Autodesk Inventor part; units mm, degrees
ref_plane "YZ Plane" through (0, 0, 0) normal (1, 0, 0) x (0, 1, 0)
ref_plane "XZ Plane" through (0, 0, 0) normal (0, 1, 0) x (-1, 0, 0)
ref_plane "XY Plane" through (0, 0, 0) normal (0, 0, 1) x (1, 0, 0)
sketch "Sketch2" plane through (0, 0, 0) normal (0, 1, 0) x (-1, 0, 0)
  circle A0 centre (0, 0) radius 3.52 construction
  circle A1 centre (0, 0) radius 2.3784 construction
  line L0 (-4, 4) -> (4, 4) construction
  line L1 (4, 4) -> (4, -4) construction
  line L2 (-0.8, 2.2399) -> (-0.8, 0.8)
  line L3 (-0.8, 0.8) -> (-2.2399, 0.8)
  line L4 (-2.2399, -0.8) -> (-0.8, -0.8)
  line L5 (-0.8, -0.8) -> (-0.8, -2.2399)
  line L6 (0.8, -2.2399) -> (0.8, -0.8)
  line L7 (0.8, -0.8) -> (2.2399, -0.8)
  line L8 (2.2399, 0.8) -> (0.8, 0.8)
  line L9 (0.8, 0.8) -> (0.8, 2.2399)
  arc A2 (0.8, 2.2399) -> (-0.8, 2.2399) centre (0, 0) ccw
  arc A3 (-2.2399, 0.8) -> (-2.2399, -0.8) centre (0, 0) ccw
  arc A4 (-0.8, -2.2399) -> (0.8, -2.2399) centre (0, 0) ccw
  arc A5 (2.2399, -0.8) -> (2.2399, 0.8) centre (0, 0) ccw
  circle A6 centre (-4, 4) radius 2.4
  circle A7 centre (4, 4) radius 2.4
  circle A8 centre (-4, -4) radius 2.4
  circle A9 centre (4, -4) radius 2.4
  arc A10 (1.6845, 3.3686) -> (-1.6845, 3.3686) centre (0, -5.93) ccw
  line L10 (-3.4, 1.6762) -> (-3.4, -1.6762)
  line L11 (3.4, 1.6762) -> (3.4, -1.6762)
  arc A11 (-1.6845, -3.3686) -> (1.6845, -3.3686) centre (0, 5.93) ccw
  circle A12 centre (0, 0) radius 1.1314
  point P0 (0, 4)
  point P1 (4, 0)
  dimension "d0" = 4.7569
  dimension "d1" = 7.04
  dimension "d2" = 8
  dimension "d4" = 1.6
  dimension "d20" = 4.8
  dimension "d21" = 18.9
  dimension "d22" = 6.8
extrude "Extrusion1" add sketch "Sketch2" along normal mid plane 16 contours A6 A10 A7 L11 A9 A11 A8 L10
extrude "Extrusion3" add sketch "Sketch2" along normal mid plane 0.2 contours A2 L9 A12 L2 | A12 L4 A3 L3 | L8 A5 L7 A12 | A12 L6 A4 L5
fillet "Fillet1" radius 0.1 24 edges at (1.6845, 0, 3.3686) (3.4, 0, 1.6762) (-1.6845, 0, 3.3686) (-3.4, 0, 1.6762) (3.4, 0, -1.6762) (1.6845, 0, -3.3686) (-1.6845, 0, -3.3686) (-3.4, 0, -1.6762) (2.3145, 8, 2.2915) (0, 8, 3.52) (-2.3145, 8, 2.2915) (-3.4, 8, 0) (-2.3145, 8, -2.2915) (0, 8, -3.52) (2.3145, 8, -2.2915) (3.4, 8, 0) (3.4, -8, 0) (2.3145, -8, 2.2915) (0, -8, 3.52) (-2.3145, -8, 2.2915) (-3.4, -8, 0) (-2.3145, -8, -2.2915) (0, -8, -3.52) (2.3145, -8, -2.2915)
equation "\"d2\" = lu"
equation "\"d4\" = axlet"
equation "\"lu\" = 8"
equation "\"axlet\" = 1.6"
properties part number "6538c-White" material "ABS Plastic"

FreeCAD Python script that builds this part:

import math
import FreeCAD as App
import Part
import Sketcher


def edges_at(feature, points):
    """Names of the edges that pass closest to the given points."""
    edges = feature.Shape.Edges
    near = lambda p: min(range(len(edges)), key=lambda i: edges[i].distToShape(Part.Vertex(*p))[0])
    return sorted({f"Edge{near(p) + 1}" for p in points})

doc = App.newDocument("Part")
body = doc.addObject("PartDesign::Body", "Body")

sketch1 = body.newObject("Sketcher::SketchObject", "Sketch")
sketch1.AttachmentSupport = (doc.getObject("XZ_Plane"), [""])
sketch1.MapMode = "FlatFace"
sketch1.addGeometry([
    Part.ArcOfCircle(Part.Circle(App.Vector(4, 4, 0), App.Vector(0, 0, 1), 2.4), math.radians(-164.747184), math.radians(-104.477453)),
    Part.LineSegment(App.Vector(3.4, 1.6762, 0), App.Vector(3.4, -1.6762, 0)),
    Part.ArcOfCircle(Part.Circle(App.Vector(4, -4, 0), App.Vector(0, 0, 1), 2.4), math.radians(104.477453), math.radians(164.747184)),
    Part.ArcOfCircle(Part.Circle(App.Vector(0, 5.93, 0), App.Vector(0, 0, 1), 9.449947), math.radians(-100.268133), math.radians(-79.731867)),
    Part.ArcOfCircle(Part.Circle(App.Vector(-4, -4, 0), App.Vector(0, 0, 1), 2.4), math.radians(15.252816), math.radians(75.522547)),
    Part.LineSegment(App.Vector(-3.4, -1.6762, 0), App.Vector(-3.4, 1.6762, 0)),
    Part.ArcOfCircle(Part.Circle(App.Vector(-4, 4, 0), App.Vector(0, 0, 1), 2.4), math.radians(-75.522547), math.radians(-15.252816)),
    Part.ArcOfCircle(Part.Circle(App.Vector(0, -5.93, 0), App.Vector(0, 0, 1), 9.449947), math.radians(79.731867), math.radians(100.268133)),
    Part.LineSegment(App.Vector(0.8, 0.8, 0), App.Vector(0.8, 2.2399, 0)),
    Part.ArcOfCircle(Part.Circle(App.Vector(0, 0, 0), App.Vector(0, 0, 1), 2.378477), math.radians(70.345366), math.radians(109.654634)),
    Part.LineSegment(App.Vector(-0.8, 2.2399, 0), App.Vector(-0.8, 0.8, 0)),
    Part.LineSegment(App.Vector(-0.8, 0.8, 0), App.Vector(-2.2399, 0.8, 0)),
    Part.ArcOfCircle(Part.Circle(App.Vector(0, 0, 0), App.Vector(0, 0, 1), 2.378477), math.radians(160.345366), math.radians(199.654634)),
    Part.LineSegment(App.Vector(-2.2399, -0.8, 0), App.Vector(-0.8, -0.8, 0)),
    Part.LineSegment(App.Vector(-0.8, -0.8, 0), App.Vector(-0.8, -2.2399, 0)),
    Part.ArcOfCircle(Part.Circle(App.Vector(0, 0, 0), App.Vector(0, 0, 1), 2.378477), math.radians(-109.654634), math.radians(-70.345366)),
    Part.LineSegment(App.Vector(0.8, -2.2399, 0), App.Vector(0.8, -0.8, 0)),
    Part.LineSegment(App.Vector(0.8, -0.8, 0), App.Vector(2.2399, -0.8, 0)),
    Part.ArcOfCircle(Part.Circle(App.Vector(0, 0, 0), App.Vector(0, 0, 1), 2.378477), math.radians(-19.654634), math.radians(19.654634)),
    Part.LineSegment(App.Vector(2.2399, 0.8, 0), App.Vector(0.8, 0.8, 0)),
], False)
sketch1.addConstraint([
    Sketcher.Constraint("Coincident", 0, 2, 1, 1),
    Sketcher.Constraint("Coincident", 1, 2, 2, 1),
    Sketcher.Constraint("Coincident", 2, 2, 3, 2),
    Sketcher.Constraint("Coincident", 3, 1, 4, 1),
    Sketcher.Constraint("Coincident", 4, 2, 5, 1),
    Sketcher.Constraint("Coincident", 5, 2, 6, 1),
    Sketcher.Constraint("Coincident", 6, 2, 7, 2),
    Sketcher.Constraint("Coincident", 7, 1, 0, 1),
    Sketcher.Constraint("Coincident", 8, 2, 9, 1),
    Sketcher.Constraint("Coincident", 9, 2, 10, 1),
    Sketcher.Constraint("Coincident", 10, 2, 11, 1),
    Sketcher.Constraint("Coincident", 11, 2, 12, 1),
    Sketcher.Constraint("Coincident", 12, 2, 13, 1),
    Sketcher.Constraint("Coincident", 13, 2, 14, 1),
    Sketcher.Constraint("Coincident", 14, 2, 15, 1),
    Sketcher.Constraint("Coincident", 15, 2, 16, 1),
    Sketcher.Constraint("Coincident", 16, 2, 17, 1),
    Sketcher.Constraint("Coincident", 17, 2, 18, 1),
    Sketcher.Constraint("Coincident", 18, 2, 19, 1),
    Sketcher.Constraint("Coincident", 19, 2, 8, 1),
    Sketcher.Constraint("Vertical", 1),
    Sketcher.Constraint("Vertical", 5),
    Sketcher.Constraint("Vertical", 8),
    Sketcher.Constraint("Vertical", 10),
    Sketcher.Constraint("Horizontal", 11),
    Sketcher.Constraint("Horizontal", 13),
    Sketcher.Constraint("Vertical", 14),
    Sketcher.Constraint("Vertical", 16),
    Sketcher.Constraint("Horizontal", 17),
    Sketcher.Constraint("Horizontal", 19),
    Sketcher.Constraint("Coincident", 9, 3, -1, 1),
    Sketcher.Constraint("Coincident", 12, 3, -1, 1),
    Sketcher.Constraint("Coincident", 15, 3, -1, 1),
    Sketcher.Constraint("Coincident", 18, 3, -1, 1),
    Sketcher.Constraint("Equal", 0, 2),
    Sketcher.Constraint("Equal", 2, 4),
    Sketcher.Constraint("Equal", 4, 6),
    Sketcher.Constraint("Equal", 3, 7),
    Sketcher.Constraint("Equal", 9, 12),
    Sketcher.Constraint("Equal", 12, 15),
    Sketcher.Constraint("Equal", 15, 18),
    Sketcher.Constraint("Symmetric", 0, 3, 4, 3, -1, 1),
    Sketcher.Constraint("Symmetric", 2, 3, 6, 3, -1, 1),
    Sketcher.Constraint("Symmetric", 3, 3, 7, 3, -1, 1),
    Sketcher.Constraint("Symmetric", 10, 2, 16, 2, -1, 1),
    Sketcher.Constraint("Symmetric", 13, 2, 19, 2, -1, 1),
    Sketcher.Constraint("Symmetric", 2, 3, 4, 3, -2),
    Sketcher.Constraint("Symmetric", 13, 2, 16, 2, -2),
    Sketcher.Constraint("PointOnObject", 3, 3, -2),
    Sketcher.Constraint("Horizontal", 1, 2, 4, 2),
    Sketcher.Constraint("Equal", 19, 8),
    Sketcher.Constraint("Radius", 0, 2.4),
    Sketcher.Constraint("Radius", 3, 9.45),
    Sketcher.Constraint("DistanceY", 2, 3, 0, 3, 8.0),
    Sketcher.Constraint("DistanceX", 4, 3, 2, 3, 8.0),
    Sketcher.Constraint("Radius", 9, 2.3785),
    Sketcher.Constraint("DistanceX", 9, 2, 8, 2, 1.6),
    Sketcher.Constraint("DistanceX", -1, 1, 0, 2, 3.4),
    Sketcher.Constraint("DistanceY", -1, 1, 3, 3, 5.93),
])
pad1 = body.newObject("PartDesign::Pad", "Pad")
pad1.Profile = sketch1
pad1.Length = 16
pad1.Midplane = True

sketch2 = body.newObject("Sketcher::SketchObject", "Sketch001")
sketch2.AttachmentSupport = (doc.getObject("XZ_Plane"), [""])
sketch2.MapMode = "FlatFace"
sketch2.addGeometry([
    Part.ArcOfCircle(Part.Circle(App.Vector(0, 0, 0), App.Vector(0, 0, 1), 2.378477), math.radians(70.345366), math.radians(109.654634)),
    Part.LineSegment(App.Vector(0.8, 2.2399, 0), App.Vector(0.8, 0.8, 0)),
    Part.ArcOfCircle(Part.Circle(App.Vector(0, 0, 0), App.Vector(0, 0, 1), 1.1314), math.radians(45), math.radians(135)),
    Part.LineSegment(App.Vector(-0.8, 0.8, 0), App.Vector(-0.8, 2.2399, 0)),
    Part.ArcOfCircle(Part.Circle(App.Vector(0, 0, 0), App.Vector(0, 0, 1), 1.1314), math.radians(-45), math.radians(45)),
    Part.LineSegment(App.Vector(0.8, 0.8, 0), App.Vector(2.2399, 0.8, 0)),
    Part.ArcOfCircle(Part.Circle(App.Vector(0, 0, 0), App.Vector(0, 0, 1), 2.378477), math.radians(-19.654634), math.radians(19.654634)),
    Part.LineSegment(App.Vector(2.2399, -0.8, 0), App.Vector(0.8, -0.8, 0)),
    Part.LineSegment(App.Vector(-2.2399, 0.8, 0), App.Vector(-0.8, 0.8, 0)),
    Part.ArcOfCircle(Part.Circle(App.Vector(0, 0, 0), App.Vector(0, 0, 1), 1.1314), math.radians(135), math.radians(225)),
    Part.LineSegment(App.Vector(-0.8, -0.8, 0), App.Vector(-2.2399, -0.8, 0)),
    Part.ArcOfCircle(Part.Circle(App.Vector(0, 0, 0), App.Vector(0, 0, 1), 2.378477), math.radians(160.345366), math.radians(199.654634)),
    Part.ArcOfCircle(Part.Circle(App.Vector(0, 0, 0), App.Vector(0, 0, 1), 1.1314), math.radians(-135), math.radians(-45)),
    Part.LineSegment(App.Vector(0.8, -0.8, 0), App.Vector(0.8, -2.2399, 0)),
    Part.ArcOfCircle(Part.Circle(App.Vector(0, 0, 0), App.Vector(0, 0, 1), 2.378477), math.radians(-109.654634), math.radians(-70.345366)),
    Part.LineSegment(App.Vector(-0.8, -2.2399, 0), App.Vector(-0.8, -0.8, 0)),
], False)
sketch2.addConstraint([
    Sketcher.Constraint("Coincident", 0, 1, 1, 1),
    Sketcher.Constraint("Coincident", 1, 2, 2, 1),
    Sketcher.Constraint("Coincident", 2, 2, 3, 1),
    Sketcher.Constraint("Coincident", 3, 2, 0, 2),
    Sketcher.Constraint("Coincident", 4, 2, 5, 1),
    Sketcher.Constraint("Coincident", 5, 2, 6, 2),
    Sketcher.Constraint("Coincident", 6, 1, 7, 1),
    Sketcher.Constraint("Coincident", 7, 2, 4, 1),
    Sketcher.Constraint("Coincident", 8, 2, 9, 1),
    Sketcher.Constraint("Coincident", 9, 2, 10, 1),
    Sketcher.Constraint("Coincident", 10, 2, 11, 2),
    Sketcher.Constraint("Coincident", 11, 1, 8, 1),
    Sketcher.Constraint("Coincident", 12, 2, 13, 1),
    Sketcher.Constraint("Coincident", 13, 2, 14, 2),
    Sketcher.Constraint("Coincident", 14, 1, 15, 1),
    Sketcher.Constraint("Coincident", 15, 2, 12, 1),
    Sketcher.Constraint("Vertical", 1),
    Sketcher.Constraint("Vertical", 3),
    Sketcher.Constraint("Horizontal", 5),
    Sketcher.Constraint("Horizontal", 7),
    Sketcher.Constraint("Horizontal", 8),
    Sketcher.Constraint("Horizontal", 10),
    Sketcher.Constraint("Vertical", 13),
    Sketcher.Constraint("Vertical", 15),
    Sketcher.Constraint("Coincident", 0, 3, -1, 1),
    Sketcher.Constraint("Coincident", 2, 3, -1, 1),
    Sketcher.Constraint("Coincident", 4, 3, -1, 1),
    Sketcher.Constraint("Coincident", 6, 3, -1, 1),
    Sketcher.Constraint("Coincident", 9, 3, -1, 1),
    Sketcher.Constraint("Coincident", 11, 3, -1, 1),
    Sketcher.Constraint("Coincident", 12, 3, -1, 1),
    Sketcher.Constraint("Coincident", 14, 3, -1, 1),
    Sketcher.Constraint("Coincident", 4, 2, 1, 2),
    Sketcher.Constraint("Coincident", 8, 2, 2, 2),
    Sketcher.Constraint("Coincident", 12, 2, 7, 2),
    Sketcher.Constraint("Equal", 0, 6),
    Sketcher.Constraint("Equal", 6, 11),
    Sketcher.Constraint("Equal", 11, 14),
    Sketcher.Constraint("Horizontal", 1, 2, 2, 2),
    Sketcher.Constraint("Horizontal", 7, 2, 9, 2),
    Sketcher.Constraint("Horizontal", 13, 2, 14, 1),
    Sketcher.Constraint("Vertical", 5, 2, 6, 1),
    Sketcher.Constraint("Equal", 10, 1),
    Sketcher.Constraint("Radius", 0, 2.3785),
    Sketcher.Constraint("DistanceX", 3, 2, 0, 1, 1.6),
])
pad2 = body.newObject("PartDesign::Pad", "Pad001")
pad2.Profile = sketch2
pad2.Length = 0.2
pad2.Midplane = True
doc.recompute()

fillet = body.newObject("PartDesign::Fillet", "Fillet")
fillet.Base = (pad2, edges_at(pad2, [
    (1.685, 0, 3.369),
    (3.4, 0, 1.676),
    (-1.685, 0, 3.369),
    (-3.4, 0, 1.676),
    (3.4, 0, -1.676),
    (1.685, 0, -3.369),
    (-1.685, 0, -3.369),
    (-3.4, 0, -1.676),
    (2.314, 8, 2.292),
    (0, 8, 3.52),
    (-2.314, 8, 2.292),
    (-3.4, 8, 0),
    (-2.314, 8, -2.292),
    (0, 8, -3.52),
    (2.314, 8, -2.292),
    (3.4, 8, 0),
    (3.4, -8, 0),
    (2.314, -8, 2.292),
    (0, -8, 3.52),
    (-2.314, -8, 2.292),
    (-3.4, -8, 0),
    (-2.314, -8, -2.292),
    (0, -8, -3.52),
    (2.314, -8, -2.292),
]))
fillet.Radius = 0.1

doc.recompute()
